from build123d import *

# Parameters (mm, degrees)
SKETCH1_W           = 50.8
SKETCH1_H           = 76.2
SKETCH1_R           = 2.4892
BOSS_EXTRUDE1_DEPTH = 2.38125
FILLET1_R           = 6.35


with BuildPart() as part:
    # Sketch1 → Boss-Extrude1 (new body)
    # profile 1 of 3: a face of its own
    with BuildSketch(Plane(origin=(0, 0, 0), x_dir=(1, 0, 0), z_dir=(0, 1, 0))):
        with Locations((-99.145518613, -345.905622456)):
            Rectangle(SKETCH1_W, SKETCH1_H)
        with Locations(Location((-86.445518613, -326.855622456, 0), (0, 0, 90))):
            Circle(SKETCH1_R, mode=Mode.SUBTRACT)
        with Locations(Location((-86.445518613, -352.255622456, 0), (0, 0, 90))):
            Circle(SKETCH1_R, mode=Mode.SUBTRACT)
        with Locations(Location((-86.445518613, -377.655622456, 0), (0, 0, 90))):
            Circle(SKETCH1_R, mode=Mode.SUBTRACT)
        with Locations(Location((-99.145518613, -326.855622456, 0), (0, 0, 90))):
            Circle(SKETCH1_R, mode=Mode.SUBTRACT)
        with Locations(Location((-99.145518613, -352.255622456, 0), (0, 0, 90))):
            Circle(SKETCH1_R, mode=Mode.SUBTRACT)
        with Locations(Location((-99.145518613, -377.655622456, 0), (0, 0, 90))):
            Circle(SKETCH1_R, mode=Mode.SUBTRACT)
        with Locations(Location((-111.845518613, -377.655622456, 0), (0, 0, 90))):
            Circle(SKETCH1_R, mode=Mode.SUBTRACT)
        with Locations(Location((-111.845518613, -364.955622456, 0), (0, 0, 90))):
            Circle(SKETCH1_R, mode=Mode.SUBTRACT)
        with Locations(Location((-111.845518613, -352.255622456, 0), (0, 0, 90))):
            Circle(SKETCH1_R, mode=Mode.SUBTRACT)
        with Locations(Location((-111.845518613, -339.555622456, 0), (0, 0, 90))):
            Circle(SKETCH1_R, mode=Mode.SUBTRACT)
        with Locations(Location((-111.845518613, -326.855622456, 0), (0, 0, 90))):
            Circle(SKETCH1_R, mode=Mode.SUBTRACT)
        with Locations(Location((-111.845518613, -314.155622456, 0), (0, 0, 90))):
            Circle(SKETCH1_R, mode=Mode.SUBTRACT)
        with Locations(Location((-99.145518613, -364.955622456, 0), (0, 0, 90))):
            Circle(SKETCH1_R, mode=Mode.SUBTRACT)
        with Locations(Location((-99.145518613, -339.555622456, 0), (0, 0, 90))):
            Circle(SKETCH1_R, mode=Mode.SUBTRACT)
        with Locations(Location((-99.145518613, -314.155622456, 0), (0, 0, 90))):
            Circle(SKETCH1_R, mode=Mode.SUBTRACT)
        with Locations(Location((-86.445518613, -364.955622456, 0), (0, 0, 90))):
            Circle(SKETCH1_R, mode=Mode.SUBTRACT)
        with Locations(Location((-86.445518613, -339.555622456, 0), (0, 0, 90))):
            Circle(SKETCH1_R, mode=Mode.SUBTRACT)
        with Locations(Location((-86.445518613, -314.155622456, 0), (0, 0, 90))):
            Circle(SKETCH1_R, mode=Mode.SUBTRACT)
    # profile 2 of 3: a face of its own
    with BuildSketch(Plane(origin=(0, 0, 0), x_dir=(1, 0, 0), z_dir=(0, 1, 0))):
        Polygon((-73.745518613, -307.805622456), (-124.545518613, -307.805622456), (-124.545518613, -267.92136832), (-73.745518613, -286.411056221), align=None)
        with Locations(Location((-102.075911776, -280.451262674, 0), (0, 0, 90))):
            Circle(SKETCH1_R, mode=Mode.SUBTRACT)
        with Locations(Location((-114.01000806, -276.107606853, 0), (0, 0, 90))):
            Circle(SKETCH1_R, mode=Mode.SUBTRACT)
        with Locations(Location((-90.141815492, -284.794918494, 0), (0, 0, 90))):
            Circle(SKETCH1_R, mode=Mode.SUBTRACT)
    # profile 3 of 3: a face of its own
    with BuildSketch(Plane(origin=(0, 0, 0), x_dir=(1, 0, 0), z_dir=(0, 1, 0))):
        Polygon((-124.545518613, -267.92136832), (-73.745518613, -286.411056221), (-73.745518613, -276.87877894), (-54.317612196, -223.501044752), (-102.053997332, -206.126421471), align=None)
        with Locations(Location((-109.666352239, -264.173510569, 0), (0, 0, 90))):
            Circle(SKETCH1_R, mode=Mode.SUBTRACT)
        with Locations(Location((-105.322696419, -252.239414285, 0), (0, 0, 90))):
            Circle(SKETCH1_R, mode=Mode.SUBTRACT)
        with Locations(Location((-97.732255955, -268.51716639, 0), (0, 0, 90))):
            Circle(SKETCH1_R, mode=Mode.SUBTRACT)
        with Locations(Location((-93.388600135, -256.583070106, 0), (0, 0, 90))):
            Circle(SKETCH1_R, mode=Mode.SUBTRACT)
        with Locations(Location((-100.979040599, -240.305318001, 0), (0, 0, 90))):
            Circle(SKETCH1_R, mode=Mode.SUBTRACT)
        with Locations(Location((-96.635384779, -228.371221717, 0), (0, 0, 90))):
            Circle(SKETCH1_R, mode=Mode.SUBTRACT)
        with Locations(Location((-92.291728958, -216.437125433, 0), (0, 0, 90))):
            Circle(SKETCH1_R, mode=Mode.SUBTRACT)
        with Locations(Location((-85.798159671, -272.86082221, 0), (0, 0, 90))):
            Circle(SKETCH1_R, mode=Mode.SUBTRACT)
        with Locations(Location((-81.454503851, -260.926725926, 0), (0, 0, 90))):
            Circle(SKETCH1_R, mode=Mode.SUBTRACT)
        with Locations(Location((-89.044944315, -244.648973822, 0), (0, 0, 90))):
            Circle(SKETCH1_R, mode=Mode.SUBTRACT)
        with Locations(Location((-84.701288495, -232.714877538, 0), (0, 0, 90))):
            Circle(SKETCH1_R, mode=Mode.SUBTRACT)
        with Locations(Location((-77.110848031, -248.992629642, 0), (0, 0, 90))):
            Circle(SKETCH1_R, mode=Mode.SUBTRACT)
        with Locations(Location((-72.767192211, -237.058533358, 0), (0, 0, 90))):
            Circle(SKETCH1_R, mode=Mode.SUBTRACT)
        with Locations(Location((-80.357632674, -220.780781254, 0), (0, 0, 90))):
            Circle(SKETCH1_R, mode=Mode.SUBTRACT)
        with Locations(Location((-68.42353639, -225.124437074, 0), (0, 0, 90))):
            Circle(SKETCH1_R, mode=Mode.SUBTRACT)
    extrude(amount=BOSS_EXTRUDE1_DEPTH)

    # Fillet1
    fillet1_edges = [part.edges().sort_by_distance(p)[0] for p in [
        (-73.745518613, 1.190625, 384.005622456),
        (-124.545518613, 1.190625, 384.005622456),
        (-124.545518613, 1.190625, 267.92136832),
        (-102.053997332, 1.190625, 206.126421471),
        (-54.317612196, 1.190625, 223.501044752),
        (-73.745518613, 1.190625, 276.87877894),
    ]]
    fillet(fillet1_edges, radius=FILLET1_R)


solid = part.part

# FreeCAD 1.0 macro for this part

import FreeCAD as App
import Part
import Sketcher
Q = App.Units.Quantity


def edges_at(feature, points):
    """Names of the edges that pass closest to the given points."""
    edges = feature.Shape.Edges
    near = lambda p: min(range(len(edges)), key=lambda i: edges[i].distToShape(Part.Vertex(*p))[0])
    return sorted({f"Edge{near(p) + 1}" for p in points})


def add_polygon(sketch, points):
    """Adds a closed chain of lines whose ends are joined by coincident constraints."""
    first, n = sketch.GeometryCount, len(points)
    for a, b in zip(points, points[1:] + points[:1]):
        sketch.addGeometry(Part.LineSegment(App.Vector(*a, 0), App.Vector(*b, 0)), False)
    for i in range(n):
        sketch.addConstraint(Sketcher.Constraint("Coincident", first + i, 2, first + (i + 1) % n, 1))

doc = App.newDocument("Part")
body = doc.addObject("PartDesign::Body", "Body")

sketch1 = body.newObject("Sketcher::SketchObject", "Sketch")
sketch1.AttachmentSupport = (doc.getObject("XZ_Plane"), [""])
sketch1.MapMode = "FlatFace"
add_polygon(sketch1, [(-124.5, 384), (-73.7, 384), (-73.7, 276.9), (-54.3, 223.5), (-102.1, 206.1), (-124.5, 267.9)])
sketch1.addGeometry(Part.Circle(App.Vector(-111.8, 377.7, 0), App.Vector(0, 0, 1), 2.5), False)
sketch1.addGeometry(Part.Circle(App.Vector(-111.8, 365, 0), App.Vector(0, 0, 1), 2.5), False)
sketch1.addGeometry(Part.Circle(App.Vector(-111.8, 352.3, 0), App.Vector(0, 0, 1), 2.5), False)
sketch1.addGeometry(Part.Circle(App.Vector(-99.1, 377.7, 0), App.Vector(0, 0, 1), 2.5), False)
sketch1.addGeometry(Part.Circle(App.Vector(-99.1, 365, 0), App.Vector(0, 0, 1), 2.5), False)
sketch1.addGeometry(Part.Circle(App.Vector(-86.4, 377.7, 0), App.Vector(0, 0, 1), 2.5), False)
sketch1.addGeometry(Part.Circle(App.Vector(-86.4, 365, 0), App.Vector(0, 0, 1), 2.5), False)
sketch1.addGeometry(Part.Circle(App.Vector(-99.1, 352.3, 0), App.Vector(0, 0, 1), 2.5), False)
sketch1.addGeometry(Part.Circle(App.Vector(-86.4, 352.3, 0), App.Vector(0, 0, 1), 2.5), False)
sketch1.addGeometry(Part.Circle(App.Vector(-111.8, 339.6, 0), App.Vector(0, 0, 1), 2.5), False)
sketch1.addGeometry(Part.Circle(App.Vector(-111.8, 326.9, 0), App.Vector(0, 0, 1), 2.5), False)
sketch1.addGeometry(Part.Circle(App.Vector(-111.8, 314.2, 0), App.Vector(0, 0, 1), 2.5), False)
sketch1.addGeometry(Part.Circle(App.Vector(-99.1, 339.6, 0), App.Vector(0, 0, 1), 2.5), False)
sketch1.addGeometry(Part.Circle(App.Vector(-86.4, 339.6, 0), App.Vector(0, 0, 1), 2.5), False)
sketch1.addGeometry(Part.Circle(App.Vector(-99.1, 326.9, 0), App.Vector(0, 0, 1), 2.5), False)
sketch1.addGeometry(Part.Circle(App.Vector(-99.1, 314.2, 0), App.Vector(0, 0, 1), 2.5), False)
sketch1.addGeometry(Part.Circle(App.Vector(-86.4, 326.9, 0), App.Vector(0, 0, 1), 2.5), False)
sketch1.addGeometry(Part.Circle(App.Vector(-86.4, 314.2, 0), App.Vector(0, 0, 1), 2.5), False)
sketch1.addGeometry(Part.Circle(App.Vector(-114, 276.1, 0), App.Vector(0, 0, 1), 2.5), False)
sketch1.addGeometry(Part.Circle(App.Vector(-90.1, 284.8, 0), App.Vector(0, 0, 1), 2.5), False)
sketch1.addGeometry(Part.Circle(App.Vector(-102.1, 280.5, 0), App.Vector(0, 0, 1), 2.5), False)
sketch1.addGeometry(Part.Circle(App.Vector(-68.4, 225.1, 0), App.Vector(0, 0, 1), 2.5), False)
sketch1.addGeometry(Part.Circle(App.Vector(-109.7, 264.2, 0), App.Vector(0, 0, 1), 2.5), False)
sketch1.addGeometry(Part.Circle(App.Vector(-97.7, 268.5, 0), App.Vector(0, 0, 1), 2.5), False)
sketch1.addGeometry(Part.Circle(App.Vector(-105.3, 252.2, 0), App.Vector(0, 0, 1), 2.5), False)
sketch1.addGeometry(Part.Circle(App.Vector(-93.4, 256.6, 0), App.Vector(0, 0, 1), 2.5), False)
sketch1.addGeometry(Part.Circle(App.Vector(-89, 244.6, 0), App.Vector(0, 0, 1), 2.5), False)
sketch1.addGeometry(Part.Circle(App.Vector(-85.8, 272.9, 0), App.Vector(0, 0, 1), 2.5), False)
sketch1.addGeometry(Part.Circle(App.Vector(-81.5, 260.9, 0), App.Vector(0, 0, 1), 2.5), False)
sketch1.addGeometry(Part.Circle(App.Vector(-77.1, 249, 0), App.Vector(0, 0, 1), 2.5), False)
sketch1.addGeometry(Part.Circle(App.Vector(-101, 240.3, 0), App.Vector(0, 0, 1), 2.5), False)
sketch1.addGeometry(Part.Circle(App.Vector(-96.6, 228.4, 0), App.Vector(0, 0, 1), 2.5), False)
sketch1.addGeometry(Part.Circle(App.Vector(-92.3, 216.4, 0), App.Vector(0, 0, 1), 2.5), False)
sketch1.addGeometry(Part.Circle(App.Vector(-84.7, 232.7, 0), App.Vector(0, 0, 1), 2.5), False)
sketch1.addGeometry(Part.Circle(App.Vector(-72.8, 237.1, 0), App.Vector(0, 0, 1), 2.5), False)
sketch1.addGeometry(Part.Circle(App.Vector(-80.4, 220.8, 0), App.Vector(0, 0, 1), 2.5), False)
sketch1.addConstraint(Sketcher.Constraint("Horizontal", 0))
sketch1.addConstraint(Sketcher.Constraint("Vertical", 1))
sketch1.addConstraint(Sketcher.Constraint("Vertical", 5))
sketch1.addConstraint(Sketcher.Constraint("Equal", 6, 7))
sketch1.addConstraint(Sketcher.Constraint("Equal", 7, 8))
sketch1.addConstraint(Sketcher.Constraint("Equal", 8, 9))
sketch1.addConstraint(Sketcher.Constraint("Equal", 9, 10))
sketch1.addConstraint(Sketcher.Constraint("Equal", 10, 11))
sketch1.addConstraint(Sketcher.Constraint("Equal", 11, 12))
sketch1.addConstraint(Sketcher.Constraint("Equal", 12, 13))
sketch1.addConstraint(Sketcher.Constraint("Equal", 13, 14))
sketch1.addConstraint(Sketcher.Constraint("Equal", 14, 15))
sketch1.addConstraint(Sketcher.Constraint("Equal", 15, 16))
sketch1.addConstraint(Sketcher.Constraint("Equal", 16, 17))
sketch1.addConstraint(Sketcher.Constraint("Equal", 17, 18))
sketch1.addConstraint(Sketcher.Constraint("Equal", 18, 19))
sketch1.addConstraint(Sketcher.Constraint("Equal", 19, 20))
sketch1.addConstraint(Sketcher.Constraint("Equal", 20, 21))
sketch1.addConstraint(Sketcher.Constraint("Equal", 21, 22))
sketch1.addConstraint(Sketcher.Constraint("Equal", 22, 23))
sketch1.addConstraint(Sketcher.Constraint("Equal", 23, 24))
sketch1.addConstraint(Sketcher.Constraint("Equal", 24, 25))
sketch1.addConstraint(Sketcher.Constraint("Equal", 25, 26))
sketch1.addConstraint(Sketcher.Constraint("Equal", 26, 27))
sketch1.addConstraint(Sketcher.Constraint("Equal", 27, 28))
sketch1.addConstraint(Sketcher.Constraint("Equal", 28, 29))
sketch1.addConstraint(Sketcher.Constraint("Equal", 29, 30))
sketch1.addConstraint(Sketcher.Constraint("Equal", 30, 31))
sketch1.addConstraint(Sketcher.Constraint("Equal", 31, 32))
sketch1.addConstraint(Sketcher.Constraint("Equal", 32, 33))
sketch1.addConstraint(Sketcher.Constraint("Equal", 33, 34))
sketch1.addConstraint(Sketcher.Constraint("Equal", 34, 35))
sketch1.addConstraint(Sketcher.Constraint("Equal", 35, 36))
sketch1.addConstraint(Sketcher.Constraint("Equal", 36, 37))
sketch1.addConstraint(Sketcher.Constraint("Equal", 37, 38))
sketch1.addConstraint(Sketcher.Constraint("Equal", 38, 39))
sketch1.addConstraint(Sketcher.Constraint("Equal", 39, 40))
sketch1.addConstraint(Sketcher.Constraint("Equal", 40, 41))
sketch1.addConstraint(Sketcher.Constraint("Perpendicular", 2, 3))
sketch1.addConstraint(Sketcher.Constraint("Perpendicular", 3, 4))
sketch1.addConstraint(Sketcher.Constraint("Horizontal", 6, 3, 9, 3))
sketch1.addConstraint(Sketcher.Constraint("Horizontal", 7, 3, 10, 3))
sketch1.addConstraint(Sketcher.Constraint("Horizontal", 9, 3, 11, 3))
sketch1.addConstraint(Sketcher.Constraint("Horizontal", 10, 3, 12, 3))
sketch1.addConstraint(Sketcher.Constraint("Horizontal", 8, 3, 13, 3))
sketch1.addConstraint(Sketcher.Constraint("Horizontal", 13, 3, 14, 3))
sketch1.addConstraint(Sketcher.Constraint("Horizontal", 15, 3, 18, 3))
sketch1.addConstraint(Sketcher.Constraint("Horizontal", 18, 3, 19, 3))
sketch1.addConstraint(Sketcher.Constraint("Horizontal", 16, 3, 20, 3))
sketch1.addConstraint(Sketcher.Constraint("Horizontal", 17, 3, 21, 3))
sketch1.addConstraint(Sketcher.Constraint("Horizontal", 20, 3, 22, 3))
sketch1.addConstraint(Sketcher.Constraint("Horizontal", 21, 3, 23, 3))
sketch1.addConstraint(Sketcher.Constraint("Vertical", 6, 3, 7, 3))
sketch1.addConstraint(Sketcher.Constraint("Vertical", 7, 3, 8, 3))
sketch1.addConstraint(Sketcher.Constraint("Vertical", 9, 3, 10, 3))
sketch1.addConstraint(Sketcher.Constraint("Vertical", 11, 3, 12, 3))
sketch1.addConstraint(Sketcher.Constraint("Vertical", 10, 3, 13, 3))
sketch1.addConstraint(Sketcher.Constraint("Vertical", 12, 3, 14, 3))
sketch1.addConstraint(Sketcher.Constraint("Vertical", 8, 3, 15, 3))
sketch1.addConstraint(Sketcher.Constraint("Vertical", 15, 3, 16, 3))
sketch1.addConstraint(Sketcher.Constraint("Vertical", 16, 3, 17, 3))
sketch1.addConstraint(Sketcher.Constraint("Vertical", 13, 3, 18, 3))
sketch1.addConstraint(Sketcher.Constraint("Vertical", 14, 3, 19, 3))
sketch1.addConstraint(Sketcher.Constraint("Vertical", 18, 3, 20, 3))
sketch1.addConstraint(Sketcher.Constraint("Vertical", 20, 3, 21, 3))
sketch1.addConstraint(Sketcher.Constraint("Vertical", 19, 3, 22, 3))
sketch1.addConstraint(Sketcher.Constraint("Vertical", 22, 3, 23, 3))
sketch1.addConstraint(Sketcher.Constraint("DistanceX", 0, 1, 0, 2, Q("2 in")))
sketch1.addConstraint(Sketcher.Constraint("Distance", 3, Q("2 in")))
sketch1.addConstraint(Sketcher.Constraint("Diameter", 6, Q("0.196 in")))
sketch1.addConstraint(Sketcher.Constraint("Angle", 2, Q("-70 deg")))
sketch1.addConstraint(Sketcher.Constraint("DistanceY", 8, 3, 6, 3, Q("1 in")))
sketch1.addConstraint(Sketcher.Constraint("DistanceX", 6, 3, 11, 3, Q("1 in")))
sketch1.addConstraint(Sketcher.Constraint("DistanceY", 15, 3, 7, 3, Q("1 in")))
sketch1.addConstraint(Sketcher.Constraint("DistanceY", 16, 3, 8, 3, Q("1 in")))
sketch1.addConstraint(Sketcher.Constraint("DistanceY", 17, 3, 15, 3, Q("1 in")))
sketch1.addConstraint(Sketcher.Constraint("DistanceX", 9, 3, 0, 2, Q("1 in")))
sketch1.addConstraint(Sketcher.Constraint("DistanceY", 7, 3, 6, 3, Q("0.5 in")))
sketch1.addConstraint(Sketcher.Constraint("DistanceX", 6, 3, 9, 3, Q("0.5 in")))
sketch1.addConstraint(Sketcher.Constraint("DistanceY", 11, 3, 0, 2, Q("0.25 in")))
sketch1.addConstraint(Sketcher.Constraint("Distance", 2, 56.803398))
sketch1.addConstraint(Sketcher.Constraint("DistanceX", 31, 3, -1, 1, 93.3886))
sketch1.addConstraint(Sketcher.Constraint("DistanceY", 3, 2, 37, 3, 22.2448))
sketch1.addConstraint(Sketcher.Constraint("DistanceY", 4, 2, 29, 3, 0.595798))
sketch1.addConstraint(Sketcher.Constraint("DistanceY", 1, 2, 1, 1, 107.126844))
sketch1.addConstraint(Sketcher.Constraint("DistanceX", 6, 3, -1, 1, 111.845519))
sketch1.addConstraint(Sketcher.Constraint("DistanceX", 24, 3, -1, 1, 114.010008))
sketch1.addConstraint(Sketcher.Constraint("DistanceY", -1, 1, 25, 3, 284.794918))
sketch1.addConstraint(Sketcher.Constraint("DistanceX", 26, 3, -1, 1, 102.075912))
sketch1.addConstraint(Sketcher.Constraint("DistanceY", -1, 1, 28, 3, 264.173511))
sketch1.addConstraint(Sketcher.Constraint("DistanceY", -1, 1, 31, 3, 256.58307))
sketch1.addConstraint(Sketcher.Constraint("DistanceX", 33, 3, -1, 1, 85.79816))
sketch1.addConstraint(Sketcher.Constraint("DistanceX", 35, 3, -1, 1, 77.110848))
sketch1.addConstraint(Sketcher.Constraint("DistanceY", -1, 1, 35, 3, 248.99263))
sketch1.addConstraint(Sketcher.Constraint("DistanceX", 36, 3, -1, 1, 100.979041))
sketch1.addConstraint(Sketcher.Constraint("DistanceY", -1, 1, 36, 3, 240.305318))
sketch1.addConstraint(Sketcher.Constraint("DistanceY", -1, 1, 37, 3, 228.371222))
sketch1.addConstraint(Sketcher.Constraint("DistanceX", 38, 3, -1, 1, 92.291729))
sketch1.addConstraint(Sketcher.Constraint("DistanceX", 39, 3, -1, 1, 84.701288))
sketch1.addConstraint(Sketcher.Constraint("DistanceY", -1, 1, 41, 3, 220.780781))
sketch1.addConstraint(Sketcher.Constraint("DistanceY", 24, 3, 25, 3, 8.687312))
sketch1.addConstraint(Sketcher.Constraint("DistanceY", 26, 3, 21, 3, 33.70436))
sketch1.addConstraint(Sketcher.Constraint("DistanceX", 25, 3, 27, 3, 21.718279))
sketch1.addConstraint(Sketcher.Constraint("DistanceY", 27, 3, 25, 3, 59.670481))
sketch1.addConstraint(Sketcher.Constraint("DistanceX", 24, 3, 27, 3, 45.586472))
sketch1.addConstraint(Sketcher.Constraint("DistanceX", 28, 3, 26, 3, 7.59044))
sketch1.addConstraint(Sketcher.Constraint("DistanceX", 29, 3, 25, 3, 7.59044))
sketch1.addConstraint(Sketcher.Constraint("DistanceX", 30, 3, 29, 3, 7.59044))
sketch1.addConstraint(Sketcher.Constraint("DistanceY", 30, 3, 26, 3, 28.211848))
sketch1.addConstraint(Sketcher.Constraint("DistanceY", 32, 3, 30, 3, 7.59044))
sketch1.addConstraint(Sketcher.Constraint("DistanceX", 29, 3, 32, 3, 8.687312))
sketch1.addConstraint(Sketcher.Constraint("DistanceY", 33, 3, 26, 3, 7.59044))
sketch1.addConstraint(Sketcher.Constraint("DistanceY", 34, 3, 29, 3, 7.59044))
sketch1.addConstraint(Sketcher.Constraint("DistanceX", 32, 3, 34, 3, 7.59044))
sketch1.addConstraint(Sketcher.Constraint("DistanceX", 37, 3, 32, 3, 7.59044))
sketch1.addConstraint(Sketcher.Constraint("DistanceY", 38, 3, 27, 3, 8.687312))
sketch1.addConstraint(Sketcher.Constraint("DistanceY", 39, 3, 36, 3, 7.59044))
sketch1.addConstraint(Sketcher.Constraint("DistanceY", 40, 3, 32, 3, 7.59044))
sketch1.addConstraint(Sketcher.Constraint("DistanceX", 34, 3, 40, 3, 8.687312))
sketch1.addConstraint(Sketcher.Constraint("DistanceX", 41, 3, 40, 3, 7.59044))
pad1 = body.newObject("PartDesign::Pad", "Pad")
pad1.Profile = sketch1
pad1.Length = Q("0.09375 in")
pad1.Reversed = True
doc.recompute()

fillet = body.newObject("PartDesign::Fillet", "Fillet")
fillet.Base = (pad1, edges_at(pad1, [
    (-73.746, 1.191, 384.006),
    (-124.546, 1.191, 384.006),
    (-124.546, 1.191, 267.921),
    (-102.054, 1.191, 206.126),
    (-54.318, 1.191, 223.501),
    (-73.746, 1.191, 276.879),
]))
fillet.Radius = Q("0.25 in")

doc.recompute()
